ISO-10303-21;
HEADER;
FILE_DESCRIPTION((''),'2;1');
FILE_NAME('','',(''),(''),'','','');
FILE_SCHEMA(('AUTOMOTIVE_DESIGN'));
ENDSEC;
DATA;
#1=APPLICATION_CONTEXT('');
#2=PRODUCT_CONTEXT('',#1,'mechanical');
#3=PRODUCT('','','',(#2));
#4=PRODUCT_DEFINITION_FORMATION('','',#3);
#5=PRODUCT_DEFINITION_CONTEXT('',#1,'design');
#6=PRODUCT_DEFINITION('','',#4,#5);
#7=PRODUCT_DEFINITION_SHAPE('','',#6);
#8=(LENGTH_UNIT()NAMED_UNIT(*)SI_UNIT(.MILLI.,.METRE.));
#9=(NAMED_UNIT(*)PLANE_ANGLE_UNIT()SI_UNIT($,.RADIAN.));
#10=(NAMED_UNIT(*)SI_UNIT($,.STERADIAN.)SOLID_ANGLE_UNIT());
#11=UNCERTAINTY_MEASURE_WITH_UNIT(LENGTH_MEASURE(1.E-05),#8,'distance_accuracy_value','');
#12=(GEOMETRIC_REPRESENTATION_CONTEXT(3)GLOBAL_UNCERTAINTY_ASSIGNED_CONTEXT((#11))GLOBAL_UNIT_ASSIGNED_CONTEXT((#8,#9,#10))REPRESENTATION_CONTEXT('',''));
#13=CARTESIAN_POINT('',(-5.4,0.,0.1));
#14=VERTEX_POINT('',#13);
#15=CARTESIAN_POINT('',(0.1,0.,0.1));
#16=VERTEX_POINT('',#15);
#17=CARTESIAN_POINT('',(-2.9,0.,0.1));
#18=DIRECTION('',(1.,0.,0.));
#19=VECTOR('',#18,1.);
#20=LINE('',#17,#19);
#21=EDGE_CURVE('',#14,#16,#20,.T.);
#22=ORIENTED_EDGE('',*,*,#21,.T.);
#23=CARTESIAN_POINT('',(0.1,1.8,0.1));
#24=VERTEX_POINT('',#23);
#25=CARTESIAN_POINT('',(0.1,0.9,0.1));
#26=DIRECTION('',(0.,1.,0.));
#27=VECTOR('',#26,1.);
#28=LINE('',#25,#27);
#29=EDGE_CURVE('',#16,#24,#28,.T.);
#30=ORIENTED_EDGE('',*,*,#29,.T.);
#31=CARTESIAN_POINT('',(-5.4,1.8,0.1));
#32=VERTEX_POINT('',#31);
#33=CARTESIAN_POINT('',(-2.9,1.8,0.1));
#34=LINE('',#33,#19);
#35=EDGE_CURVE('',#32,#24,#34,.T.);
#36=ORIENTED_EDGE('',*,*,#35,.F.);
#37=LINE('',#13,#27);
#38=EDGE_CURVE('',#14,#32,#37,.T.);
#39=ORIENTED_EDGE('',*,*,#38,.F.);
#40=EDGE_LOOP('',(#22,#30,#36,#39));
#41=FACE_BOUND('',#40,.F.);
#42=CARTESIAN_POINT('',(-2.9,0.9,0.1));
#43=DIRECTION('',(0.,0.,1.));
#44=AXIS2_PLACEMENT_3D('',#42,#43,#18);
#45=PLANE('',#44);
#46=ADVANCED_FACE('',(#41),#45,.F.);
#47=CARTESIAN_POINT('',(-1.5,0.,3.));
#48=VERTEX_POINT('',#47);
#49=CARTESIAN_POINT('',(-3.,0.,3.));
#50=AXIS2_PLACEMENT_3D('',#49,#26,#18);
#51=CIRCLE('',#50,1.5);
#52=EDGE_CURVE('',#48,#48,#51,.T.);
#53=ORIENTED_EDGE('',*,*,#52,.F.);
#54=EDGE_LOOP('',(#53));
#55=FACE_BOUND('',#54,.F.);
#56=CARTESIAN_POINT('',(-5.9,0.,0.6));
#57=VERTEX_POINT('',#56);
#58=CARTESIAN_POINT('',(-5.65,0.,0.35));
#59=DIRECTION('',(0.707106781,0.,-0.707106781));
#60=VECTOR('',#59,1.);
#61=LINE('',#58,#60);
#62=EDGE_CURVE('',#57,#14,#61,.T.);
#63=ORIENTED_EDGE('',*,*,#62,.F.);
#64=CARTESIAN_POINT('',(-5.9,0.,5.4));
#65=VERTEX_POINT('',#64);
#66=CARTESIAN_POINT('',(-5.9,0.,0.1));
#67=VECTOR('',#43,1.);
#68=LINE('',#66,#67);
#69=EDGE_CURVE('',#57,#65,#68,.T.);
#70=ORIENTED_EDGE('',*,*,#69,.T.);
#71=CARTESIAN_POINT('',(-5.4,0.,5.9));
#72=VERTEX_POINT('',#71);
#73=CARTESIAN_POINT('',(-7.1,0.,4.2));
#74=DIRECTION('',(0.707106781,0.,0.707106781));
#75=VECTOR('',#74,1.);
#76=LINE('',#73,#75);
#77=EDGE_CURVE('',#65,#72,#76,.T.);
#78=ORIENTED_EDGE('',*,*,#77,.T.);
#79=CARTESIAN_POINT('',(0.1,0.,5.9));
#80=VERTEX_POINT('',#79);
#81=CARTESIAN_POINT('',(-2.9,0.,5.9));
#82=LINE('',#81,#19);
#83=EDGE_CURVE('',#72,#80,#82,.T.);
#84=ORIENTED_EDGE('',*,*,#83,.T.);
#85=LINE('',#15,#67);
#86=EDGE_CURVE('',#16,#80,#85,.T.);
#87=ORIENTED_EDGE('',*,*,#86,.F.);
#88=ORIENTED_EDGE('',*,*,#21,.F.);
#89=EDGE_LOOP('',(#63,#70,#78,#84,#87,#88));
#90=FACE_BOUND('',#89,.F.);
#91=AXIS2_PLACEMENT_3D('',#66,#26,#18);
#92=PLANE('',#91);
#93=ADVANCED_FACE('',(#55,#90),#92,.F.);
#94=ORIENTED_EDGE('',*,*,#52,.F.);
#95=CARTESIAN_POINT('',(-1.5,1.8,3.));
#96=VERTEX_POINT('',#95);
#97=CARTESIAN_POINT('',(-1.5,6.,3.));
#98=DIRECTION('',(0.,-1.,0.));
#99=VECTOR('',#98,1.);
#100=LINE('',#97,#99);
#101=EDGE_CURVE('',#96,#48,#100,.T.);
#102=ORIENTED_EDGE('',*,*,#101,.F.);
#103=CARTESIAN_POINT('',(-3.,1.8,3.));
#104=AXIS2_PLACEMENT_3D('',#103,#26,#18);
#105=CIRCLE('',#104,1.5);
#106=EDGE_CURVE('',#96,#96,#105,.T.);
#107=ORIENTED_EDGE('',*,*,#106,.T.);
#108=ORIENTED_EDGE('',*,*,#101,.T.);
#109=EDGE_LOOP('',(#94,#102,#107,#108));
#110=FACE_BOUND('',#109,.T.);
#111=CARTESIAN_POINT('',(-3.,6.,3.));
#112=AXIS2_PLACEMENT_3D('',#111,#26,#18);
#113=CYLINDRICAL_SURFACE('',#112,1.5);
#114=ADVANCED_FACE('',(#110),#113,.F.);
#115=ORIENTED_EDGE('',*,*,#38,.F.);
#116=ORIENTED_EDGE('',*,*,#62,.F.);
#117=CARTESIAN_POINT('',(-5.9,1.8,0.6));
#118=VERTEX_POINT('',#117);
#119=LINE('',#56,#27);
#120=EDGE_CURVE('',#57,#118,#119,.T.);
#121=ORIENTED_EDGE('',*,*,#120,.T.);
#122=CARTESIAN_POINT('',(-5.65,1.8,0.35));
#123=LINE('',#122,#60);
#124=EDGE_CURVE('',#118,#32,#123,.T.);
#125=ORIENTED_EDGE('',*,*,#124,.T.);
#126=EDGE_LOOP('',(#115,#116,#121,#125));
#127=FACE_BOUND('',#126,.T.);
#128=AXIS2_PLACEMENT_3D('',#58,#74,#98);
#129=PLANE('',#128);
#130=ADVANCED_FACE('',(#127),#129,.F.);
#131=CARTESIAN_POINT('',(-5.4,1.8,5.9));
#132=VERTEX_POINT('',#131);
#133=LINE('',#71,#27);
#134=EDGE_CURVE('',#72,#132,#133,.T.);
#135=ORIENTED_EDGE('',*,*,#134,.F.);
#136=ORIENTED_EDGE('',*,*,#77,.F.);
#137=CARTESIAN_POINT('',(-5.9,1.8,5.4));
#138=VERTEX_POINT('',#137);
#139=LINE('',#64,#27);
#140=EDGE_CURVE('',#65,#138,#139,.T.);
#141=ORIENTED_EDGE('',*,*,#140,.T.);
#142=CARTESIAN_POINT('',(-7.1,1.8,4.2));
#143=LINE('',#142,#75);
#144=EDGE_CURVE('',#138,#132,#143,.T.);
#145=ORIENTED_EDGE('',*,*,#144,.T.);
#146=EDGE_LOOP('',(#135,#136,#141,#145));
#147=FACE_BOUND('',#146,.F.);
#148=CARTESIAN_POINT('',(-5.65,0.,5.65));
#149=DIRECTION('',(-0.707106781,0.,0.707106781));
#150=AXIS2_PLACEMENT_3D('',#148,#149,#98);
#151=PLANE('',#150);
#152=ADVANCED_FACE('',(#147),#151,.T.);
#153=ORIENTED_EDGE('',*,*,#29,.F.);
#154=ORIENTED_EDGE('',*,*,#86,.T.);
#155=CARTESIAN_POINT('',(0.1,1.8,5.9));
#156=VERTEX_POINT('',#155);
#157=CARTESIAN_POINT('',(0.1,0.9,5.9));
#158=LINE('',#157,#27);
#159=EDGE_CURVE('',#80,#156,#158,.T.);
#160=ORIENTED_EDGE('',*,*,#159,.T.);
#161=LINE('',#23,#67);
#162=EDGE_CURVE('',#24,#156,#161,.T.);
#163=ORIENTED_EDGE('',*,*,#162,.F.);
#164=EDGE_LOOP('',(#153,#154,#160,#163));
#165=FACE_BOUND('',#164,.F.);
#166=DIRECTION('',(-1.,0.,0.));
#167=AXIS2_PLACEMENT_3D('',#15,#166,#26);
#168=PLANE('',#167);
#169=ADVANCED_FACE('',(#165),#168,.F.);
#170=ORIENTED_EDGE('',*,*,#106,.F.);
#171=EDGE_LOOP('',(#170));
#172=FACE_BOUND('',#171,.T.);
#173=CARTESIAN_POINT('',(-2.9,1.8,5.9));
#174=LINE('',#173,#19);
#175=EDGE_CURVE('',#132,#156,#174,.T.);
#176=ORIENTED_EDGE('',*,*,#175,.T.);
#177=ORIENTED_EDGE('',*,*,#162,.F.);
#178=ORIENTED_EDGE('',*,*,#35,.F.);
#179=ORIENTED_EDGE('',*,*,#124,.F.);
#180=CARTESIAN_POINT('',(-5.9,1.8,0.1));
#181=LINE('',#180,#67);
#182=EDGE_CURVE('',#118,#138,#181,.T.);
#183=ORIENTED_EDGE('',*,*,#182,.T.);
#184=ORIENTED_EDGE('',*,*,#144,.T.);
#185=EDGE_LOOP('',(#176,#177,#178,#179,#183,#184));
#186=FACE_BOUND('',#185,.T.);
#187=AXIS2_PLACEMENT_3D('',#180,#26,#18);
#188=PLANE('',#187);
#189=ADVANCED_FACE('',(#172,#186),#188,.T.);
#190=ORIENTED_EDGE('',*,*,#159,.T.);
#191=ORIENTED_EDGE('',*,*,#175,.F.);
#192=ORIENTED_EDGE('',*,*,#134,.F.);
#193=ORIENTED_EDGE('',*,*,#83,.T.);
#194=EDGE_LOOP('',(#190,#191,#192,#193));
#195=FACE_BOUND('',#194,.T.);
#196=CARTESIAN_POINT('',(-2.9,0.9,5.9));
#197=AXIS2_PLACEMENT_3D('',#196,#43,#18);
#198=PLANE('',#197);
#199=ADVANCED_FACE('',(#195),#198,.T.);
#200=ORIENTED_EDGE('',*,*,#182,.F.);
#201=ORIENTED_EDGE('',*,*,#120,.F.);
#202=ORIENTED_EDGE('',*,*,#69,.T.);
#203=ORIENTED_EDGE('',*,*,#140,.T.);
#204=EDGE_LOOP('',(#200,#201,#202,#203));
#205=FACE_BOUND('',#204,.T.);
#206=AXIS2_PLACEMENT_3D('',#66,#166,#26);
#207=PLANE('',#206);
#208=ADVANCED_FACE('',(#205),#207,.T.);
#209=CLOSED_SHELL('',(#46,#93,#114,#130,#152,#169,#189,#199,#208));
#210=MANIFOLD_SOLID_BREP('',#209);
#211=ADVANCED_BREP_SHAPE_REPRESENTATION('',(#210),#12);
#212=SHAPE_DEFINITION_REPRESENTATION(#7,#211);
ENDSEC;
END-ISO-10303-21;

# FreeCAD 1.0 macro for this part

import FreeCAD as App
import Part
import Sketcher


def edges_at(feature, points):
    """Names of the edges that pass closest to the given points."""
    edges = feature.Shape.Edges
    near = lambda p: min(range(len(edges)), key=lambda i: edges[i].distToShape(Part.Vertex(*p))[0])
    return sorted({f"Edge{near(p) + 1}" for p in points})

doc = App.newDocument("Part")
body = doc.addObject("PartDesign::Body", "Body")

sketch1 = body.newObject("Sketcher::SketchObject", "Sketch")
sketch1.AttachmentSupport = (doc.getObject("XZ_Plane"), [""])
sketch1.MapMode = "FlatFace"
sketch1.AttachmentOffset = App.Placement(App.Vector(0, 0, -6), App.Rotation())
sketch1.addGeometry(Part.Circle(App.Vector(-3, 3, 0), App.Vector(0, 0, 1), 1.5), False)
sketch1.addConstraint([
    Sketcher.Constraint("Diameter", 0, 3.0),
    Sketcher.Constraint("DistanceX", 0, 3, -1, 1, 3.0),
    Sketcher.Constraint("DistanceY", -1, 1, 0, 3, 3.0),
])
pad1 = body.newObject("PartDesign::Pad", "Pad")
pad1.Profile = sketch1
pad1.Length = 10
body2 = doc.addObject("PartDesign::Body", "Body001")

sketch2 = body2.newObject("Sketcher::SketchObject", "Sketch001")
sketch2.AttachmentSupport = (doc.getObject("XY_Plane001"), [""])
sketch2.MapMode = "FlatFace"
sketch2.AttachmentOffset = App.Placement(App.Vector(0, 0, 0.1), App.Rotation())
sketch2.addGeometry([
    Part.LineSegment(App.Vector(-5.9, 1.8, 0), App.Vector(-5.9, 0, 0)),
    Part.LineSegment(App.Vector(-5.9, 0, 0), App.Vector(0.1, 0, 0)),
    Part.LineSegment(App.Vector(0.1, 0, 0), App.Vector(0.1, 1.8, 0)),
    Part.LineSegment(App.Vector(0.1, 1.8, 0), App.Vector(-5.9, 1.8, 0)),
], False)
sketch2.addConstraint([
    Sketcher.Constraint("Coincident", 0, 2, 1, 1),
    Sketcher.Constraint("Coincident", 1, 2, 2, 1),
    Sketcher.Constraint("Coincident", 2, 2, 3, 1),
    Sketcher.Constraint("Coincident", 3, 2, 0, 1),
    Sketcher.Constraint("Vertical", 0),
    Sketcher.Constraint("Horizontal", 1),
    Sketcher.Constraint("Vertical", 2),
    Sketcher.Constraint("Horizontal", 3),
    Sketcher.Constraint("PointOnObject", 0, 2, -1),
    Sketcher.Constraint("DistanceX", 1, 1, 1, 2, 6.0),
    Sketcher.Constraint("DistanceY", 0, 2, 0, 1, 1.8),
    Sketcher.Constraint("DistanceX", 0, 2, -1, 1, 5.9),
])
pad2 = body2.newObject("PartDesign::Pad", "Pad001")
pad2.Profile = sketch2
pad2.Length = 5.8
doc.recompute()

boolean = body2.newObject("PartDesign::Boolean", "Boolean")
boolean.Type = "Cut"
boolean.addObjects([body])
doc.recompute()

chamfer = body2.newObject("PartDesign::Chamfer", "Chamfer")
chamfer.Base = (boolean, edges_at(boolean, [(-5.9, 0.9, 5.9), (-5.9, 0.9, 0.1)]))
chamfer.Size = 0.5

doc.recompute()
